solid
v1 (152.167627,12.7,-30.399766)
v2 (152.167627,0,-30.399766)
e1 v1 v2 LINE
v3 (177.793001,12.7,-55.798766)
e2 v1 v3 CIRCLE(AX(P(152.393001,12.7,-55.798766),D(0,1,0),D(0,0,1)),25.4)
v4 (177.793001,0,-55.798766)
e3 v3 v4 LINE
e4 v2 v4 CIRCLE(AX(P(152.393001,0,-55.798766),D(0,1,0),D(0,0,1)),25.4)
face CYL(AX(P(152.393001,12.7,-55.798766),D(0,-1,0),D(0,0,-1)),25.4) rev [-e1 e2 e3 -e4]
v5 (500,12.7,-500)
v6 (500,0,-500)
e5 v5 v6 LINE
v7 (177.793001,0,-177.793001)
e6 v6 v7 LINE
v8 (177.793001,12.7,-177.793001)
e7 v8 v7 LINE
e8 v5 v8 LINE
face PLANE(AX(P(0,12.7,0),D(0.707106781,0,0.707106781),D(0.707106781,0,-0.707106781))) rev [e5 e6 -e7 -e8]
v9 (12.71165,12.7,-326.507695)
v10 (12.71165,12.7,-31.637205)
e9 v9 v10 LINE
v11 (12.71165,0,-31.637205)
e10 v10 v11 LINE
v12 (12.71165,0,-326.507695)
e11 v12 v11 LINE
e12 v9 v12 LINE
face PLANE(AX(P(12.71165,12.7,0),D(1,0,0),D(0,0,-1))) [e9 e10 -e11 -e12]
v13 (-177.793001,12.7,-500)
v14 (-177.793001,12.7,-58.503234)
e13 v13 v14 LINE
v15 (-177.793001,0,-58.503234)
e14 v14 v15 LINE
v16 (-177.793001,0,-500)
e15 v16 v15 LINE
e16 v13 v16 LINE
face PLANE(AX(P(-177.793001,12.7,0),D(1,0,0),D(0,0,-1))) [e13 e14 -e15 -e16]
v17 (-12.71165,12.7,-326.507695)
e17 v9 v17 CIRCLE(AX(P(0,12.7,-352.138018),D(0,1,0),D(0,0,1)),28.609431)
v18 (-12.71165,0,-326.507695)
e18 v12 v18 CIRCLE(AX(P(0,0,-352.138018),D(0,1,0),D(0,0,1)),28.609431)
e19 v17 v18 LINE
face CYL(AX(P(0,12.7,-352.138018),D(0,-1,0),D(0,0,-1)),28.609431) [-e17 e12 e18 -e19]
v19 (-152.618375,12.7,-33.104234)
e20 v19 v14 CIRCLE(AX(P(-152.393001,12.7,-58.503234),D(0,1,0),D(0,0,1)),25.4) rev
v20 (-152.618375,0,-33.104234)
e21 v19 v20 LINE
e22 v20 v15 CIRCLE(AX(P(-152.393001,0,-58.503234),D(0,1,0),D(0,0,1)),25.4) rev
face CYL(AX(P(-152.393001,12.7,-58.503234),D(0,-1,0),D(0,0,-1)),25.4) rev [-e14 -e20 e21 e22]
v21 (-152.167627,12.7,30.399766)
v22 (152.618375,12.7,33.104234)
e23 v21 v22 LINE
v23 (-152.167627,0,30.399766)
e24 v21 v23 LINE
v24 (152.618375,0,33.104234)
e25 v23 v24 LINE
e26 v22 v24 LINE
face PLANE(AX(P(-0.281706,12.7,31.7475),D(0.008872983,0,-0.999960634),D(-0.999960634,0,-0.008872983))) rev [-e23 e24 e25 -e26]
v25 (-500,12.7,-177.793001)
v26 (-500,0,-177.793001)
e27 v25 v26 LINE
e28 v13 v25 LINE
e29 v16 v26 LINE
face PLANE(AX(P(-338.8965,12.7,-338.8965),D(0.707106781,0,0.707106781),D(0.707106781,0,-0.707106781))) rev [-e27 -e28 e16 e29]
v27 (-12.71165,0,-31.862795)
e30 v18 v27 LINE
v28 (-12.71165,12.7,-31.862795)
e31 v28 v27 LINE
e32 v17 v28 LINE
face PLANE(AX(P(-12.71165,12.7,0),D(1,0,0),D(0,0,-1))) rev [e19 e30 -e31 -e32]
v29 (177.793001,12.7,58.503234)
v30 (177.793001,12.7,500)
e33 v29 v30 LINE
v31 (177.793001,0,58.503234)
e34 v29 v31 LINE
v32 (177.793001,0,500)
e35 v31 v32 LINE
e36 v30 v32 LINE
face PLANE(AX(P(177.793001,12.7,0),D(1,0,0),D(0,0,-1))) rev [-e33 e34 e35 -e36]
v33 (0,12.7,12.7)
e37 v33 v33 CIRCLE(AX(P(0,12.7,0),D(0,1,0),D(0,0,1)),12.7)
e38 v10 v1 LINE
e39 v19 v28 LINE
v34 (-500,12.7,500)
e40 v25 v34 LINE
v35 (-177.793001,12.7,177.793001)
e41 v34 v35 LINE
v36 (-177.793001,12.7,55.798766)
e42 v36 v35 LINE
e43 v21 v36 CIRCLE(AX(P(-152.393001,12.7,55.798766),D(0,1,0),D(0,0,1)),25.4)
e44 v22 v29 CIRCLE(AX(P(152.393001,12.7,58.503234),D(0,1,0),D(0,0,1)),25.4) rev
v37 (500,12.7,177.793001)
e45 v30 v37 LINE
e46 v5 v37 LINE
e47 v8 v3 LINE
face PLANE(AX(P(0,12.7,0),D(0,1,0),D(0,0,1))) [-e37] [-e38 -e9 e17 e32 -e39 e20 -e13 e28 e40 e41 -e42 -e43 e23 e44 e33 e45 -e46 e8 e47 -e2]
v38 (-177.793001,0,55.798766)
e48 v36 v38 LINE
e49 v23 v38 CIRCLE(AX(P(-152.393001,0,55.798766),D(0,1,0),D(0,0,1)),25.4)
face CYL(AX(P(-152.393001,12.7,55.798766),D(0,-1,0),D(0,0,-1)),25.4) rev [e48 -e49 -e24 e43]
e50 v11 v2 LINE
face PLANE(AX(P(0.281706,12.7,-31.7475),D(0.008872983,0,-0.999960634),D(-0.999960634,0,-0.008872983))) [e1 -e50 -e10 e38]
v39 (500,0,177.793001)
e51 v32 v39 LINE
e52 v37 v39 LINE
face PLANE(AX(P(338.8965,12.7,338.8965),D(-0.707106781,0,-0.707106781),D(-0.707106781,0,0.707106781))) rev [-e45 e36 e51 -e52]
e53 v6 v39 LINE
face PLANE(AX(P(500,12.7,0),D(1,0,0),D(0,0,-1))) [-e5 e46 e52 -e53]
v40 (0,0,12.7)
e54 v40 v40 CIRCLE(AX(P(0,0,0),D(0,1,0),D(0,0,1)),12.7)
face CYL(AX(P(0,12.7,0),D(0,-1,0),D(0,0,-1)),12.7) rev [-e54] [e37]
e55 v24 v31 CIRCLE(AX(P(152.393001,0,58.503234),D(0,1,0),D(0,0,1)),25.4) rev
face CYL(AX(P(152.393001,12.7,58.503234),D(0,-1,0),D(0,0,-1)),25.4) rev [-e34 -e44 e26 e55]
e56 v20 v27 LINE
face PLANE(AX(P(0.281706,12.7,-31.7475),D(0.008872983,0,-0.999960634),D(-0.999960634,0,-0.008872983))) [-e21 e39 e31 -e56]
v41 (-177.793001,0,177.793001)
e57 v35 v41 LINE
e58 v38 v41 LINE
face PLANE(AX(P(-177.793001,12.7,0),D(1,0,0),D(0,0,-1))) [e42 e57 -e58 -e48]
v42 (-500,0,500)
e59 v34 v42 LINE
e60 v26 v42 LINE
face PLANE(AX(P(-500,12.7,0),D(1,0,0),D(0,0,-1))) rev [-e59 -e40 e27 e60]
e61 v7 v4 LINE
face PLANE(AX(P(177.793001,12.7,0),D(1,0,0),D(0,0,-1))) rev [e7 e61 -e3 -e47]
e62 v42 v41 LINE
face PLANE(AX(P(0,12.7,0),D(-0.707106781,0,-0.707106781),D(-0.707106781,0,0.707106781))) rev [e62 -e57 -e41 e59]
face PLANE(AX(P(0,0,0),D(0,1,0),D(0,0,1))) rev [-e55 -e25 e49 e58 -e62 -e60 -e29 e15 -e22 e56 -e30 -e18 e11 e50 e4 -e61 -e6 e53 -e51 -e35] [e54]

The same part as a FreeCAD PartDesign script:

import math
import FreeCAD as App
import Part
import Sketcher

V = App.Vector
Q = App.Units.Quantity

doc = App.newDocument("Part")
params = doc.addObject("Spreadsheet::Sheet", "Params")
for row, (alias, value) in enumerate([
    ("sketch1_diameter", "1 in"),
    ("sketch1_radius", "1 in"),
    ("pad1_length", "0.5 in"),
], start=1):
    params.set(f"A{row}", alias)
    params.set(f"B{row}", "=" + value)
    params.setAlias(f"B{row}", alias)

body = doc.addObject("PartDesign::Body", "Body")

sketch1 = doc.addObject("Sketcher::SketchObject", "Sketch")
body.addObject(sketch1)
sketch1.AttachmentSupport = (doc.XZ_Plane, [""])
sketch1.MapMode = "FlatFace"
sketch1.addGeometry([
    Part.ArcOfCircle(Part.Circle(V(-152.393001, 55.798766, 0), V(0, 0, 1), 25.4), math.radians(180), math.radians(270.508391)),
    Part.LineSegment(V(-152.167627, 30.399766, 0), V(152.618375, 33.104234, 0)),
    Part.ArcOfCircle(Part.Circle(V(152.393001, 58.503234, 0), V(0, 0, 1), 25.4), math.radians(-89.491609), math.radians(0)),
    Part.LineSegment(V(177.793001, 58.503234, 0), V(177.793001, 500, 0)),
    Part.LineSegment(V(177.793001, 500, 0), V(500, 177.793001, 0)),
    Part.LineSegment(V(500, 177.793001, 0), V(500, -500, 0)),
    Part.LineSegment(V(500, -500, 0), V(177.793001, -177.793001, 0)),
    Part.LineSegment(V(177.793001, -177.793001, 0), V(177.793001, -55.798766, 0)),
    Part.ArcOfCircle(Part.Circle(V(152.393001, -55.798766, 0), V(0, 0, 1), 25.4), math.radians(0), math.radians(90.508391)),
    Part.LineSegment(V(152.167627, -30.399766, 0), V(12.71165, -31.637205, 0)),
    Part.LineSegment(V(12.71165, -31.637205, 0), V(12.71165, -326.507695, 0)),
    Part.ArcOfCircle(Part.Circle(V(0, -352.138018, 0), V(0, 0, 1), 28.609431), math.radians(116.379634), math.radians(423.620366)),
    Part.LineSegment(V(-12.71165, -326.507695, 0), V(-12.71165, -31.862795, 0)),
    Part.LineSegment(V(-12.71165, -31.862795, 0), V(-152.618375, -33.104234, 0)),
    Part.ArcOfCircle(Part.Circle(V(-152.393001, -58.503234, 0), V(0, 0, 1), 25.4), math.radians(90.508391), math.radians(180)),
    Part.LineSegment(V(-177.793001, -58.503234, 0), V(-177.793001, -500, 0)),
    Part.LineSegment(V(-177.793001, -500, 0), V(-500, -177.793001, 0)),
    Part.LineSegment(V(-500, -177.793001, 0), V(-500, 500, 0)),
    Part.LineSegment(V(-500, 500, 0), V(-177.793001, 177.793001, 0)),
    Part.LineSegment(V(-177.793001, 177.793001, 0), V(-177.793001, 55.798766, 0)),
    Part.Circle(V(0, 0, 0), V(0, 0, 1), 12.7),
], False)
sketch1.addConstraint([
    Sketcher.Constraint("Tangent", 0, 2, 1, 1),
    Sketcher.Constraint("Tangent", 1, 2, 2, 1),
    Sketcher.Constraint("Tangent", 2, 2, 3, 1),
    Sketcher.Constraint("Coincident", 3, 2, 4, 1),
    Sketcher.Constraint("Coincident", 4, 2, 5, 1),
    Sketcher.Constraint("Coincident", 5, 2, 6, 1),
    Sketcher.Constraint("Coincident", 6, 2, 7, 1),
    Sketcher.Constraint("Tangent", 7, 2, 8, 1),
    Sketcher.Constraint("Tangent", 8, 2, 9, 1),
    Sketcher.Constraint("Coincident", 9, 2, 10, 1),
    Sketcher.Constraint("Coincident", 10, 2, 11, 2),
    Sketcher.Constraint("Coincident", 11, 1, 12, 1),
    Sketcher.Constraint("Coincident", 12, 2, 13, 1),
    Sketcher.Constraint("Tangent", 13, 2, 14, 1),
    Sketcher.Constraint("Tangent", 14, 2, 15, 1),
    Sketcher.Constraint("Coincident", 15, 2, 16, 1),
    Sketcher.Constraint("Coincident", 16, 2, 17, 1),
    Sketcher.Constraint("Coincident", 17, 2, 18, 1),
    Sketcher.Constraint("Coincident", 18, 2, 19, 1),
    Sketcher.Constraint("Tangent", 19, 2, 0, 1),
    Sketcher.Constraint("Vertical", 3),
    Sketcher.Constraint("Vertical", 5),
    Sketcher.Constraint("Vertical", 7),
    Sketcher.Constraint("Vertical", 10),
    Sketcher.Constraint("Vertical", 12),
    Sketcher.Constraint("Vertical", 15),
    Sketcher.Constraint("Vertical", 17),
    Sketcher.Constraint("Vertical", 19),
    Sketcher.Constraint("Coincident", 20, 3, -1, 1),
    Sketcher.Constraint("Equal", 0, 2),
    Sketcher.Constraint("Equal", 2, 8),
    Sketcher.Constraint("Equal", 8, 14),
    Sketcher.Constraint("Symmetric", 0, 3, 8, 3, -1, 1),
    Sketcher.Constraint("Symmetric", 2, 3, 14, 3, -1, 1),
    Sketcher.Constraint("Symmetric", 4, 2, 16, 2, -1, 1),
    Sketcher.Constraint("Symmetric", 10, 2, 11, 1, -2),
    Sketcher.Constraint("Parallel", 4, 6),
    Sketcher.Constraint("Parallel", 1, 9),
    Sketcher.Constraint("Parallel", 9, 13),
    Sketcher.Constraint("Parallel", 6, 16),
    Sketcher.Constraint("Parallel", 16, 18),
    Sketcher.Constraint("Horizontal", 5, 2, 15, 2),
    Sketcher.Constraint("Horizontal", 6, 2, 16, 2),
    Sketcher.Constraint("Horizontal", 3, 2, 17, 2),
    Sketcher.Constraint("Diameter", 20, Q("1 in")),
    Sketcher.Constraint("Radius", 0, Q("1 in")),
    Sketcher.Constraint("Angle", 4, Q("-45 deg")),
    Sketcher.Constraint("Radius", 11, 28.609431),
    Sketcher.Constraint("DistanceY", 5, 2, 5, 1, 677.793001),
    Sketcher.Constraint("DistanceY", 12, 1, 12, 2, 294.6449),
    Sketcher.Constraint("Distance", 1, 304.798),
    Sketcher.Constraint("DistanceY", 10, 2, 10, 1, 294.87049),
    Sketcher.Constraint("DistanceY", -1, 1, 3, 2, 500.0),
    Sketcher.Constraint("DistanceY", 8, 3, 2, 3, 114.302),
    Sketcher.Constraint("DistanceX", 11, 1, 10, 2, 25.4233),
])
sketch1.setExpression("Constraints[44]", "Params.sketch1_diameter")
sketch1.setExpression("Constraints[45]", "Params.sketch1_radius")
pad1 = doc.addObject("PartDesign::Pad", "Pad")
body.addObject(pad1)
pad1.Profile = sketch1
pad1.setExpression("Length", "Params.pad1_length")
pad1.Reversed = True

doc.recompute()
